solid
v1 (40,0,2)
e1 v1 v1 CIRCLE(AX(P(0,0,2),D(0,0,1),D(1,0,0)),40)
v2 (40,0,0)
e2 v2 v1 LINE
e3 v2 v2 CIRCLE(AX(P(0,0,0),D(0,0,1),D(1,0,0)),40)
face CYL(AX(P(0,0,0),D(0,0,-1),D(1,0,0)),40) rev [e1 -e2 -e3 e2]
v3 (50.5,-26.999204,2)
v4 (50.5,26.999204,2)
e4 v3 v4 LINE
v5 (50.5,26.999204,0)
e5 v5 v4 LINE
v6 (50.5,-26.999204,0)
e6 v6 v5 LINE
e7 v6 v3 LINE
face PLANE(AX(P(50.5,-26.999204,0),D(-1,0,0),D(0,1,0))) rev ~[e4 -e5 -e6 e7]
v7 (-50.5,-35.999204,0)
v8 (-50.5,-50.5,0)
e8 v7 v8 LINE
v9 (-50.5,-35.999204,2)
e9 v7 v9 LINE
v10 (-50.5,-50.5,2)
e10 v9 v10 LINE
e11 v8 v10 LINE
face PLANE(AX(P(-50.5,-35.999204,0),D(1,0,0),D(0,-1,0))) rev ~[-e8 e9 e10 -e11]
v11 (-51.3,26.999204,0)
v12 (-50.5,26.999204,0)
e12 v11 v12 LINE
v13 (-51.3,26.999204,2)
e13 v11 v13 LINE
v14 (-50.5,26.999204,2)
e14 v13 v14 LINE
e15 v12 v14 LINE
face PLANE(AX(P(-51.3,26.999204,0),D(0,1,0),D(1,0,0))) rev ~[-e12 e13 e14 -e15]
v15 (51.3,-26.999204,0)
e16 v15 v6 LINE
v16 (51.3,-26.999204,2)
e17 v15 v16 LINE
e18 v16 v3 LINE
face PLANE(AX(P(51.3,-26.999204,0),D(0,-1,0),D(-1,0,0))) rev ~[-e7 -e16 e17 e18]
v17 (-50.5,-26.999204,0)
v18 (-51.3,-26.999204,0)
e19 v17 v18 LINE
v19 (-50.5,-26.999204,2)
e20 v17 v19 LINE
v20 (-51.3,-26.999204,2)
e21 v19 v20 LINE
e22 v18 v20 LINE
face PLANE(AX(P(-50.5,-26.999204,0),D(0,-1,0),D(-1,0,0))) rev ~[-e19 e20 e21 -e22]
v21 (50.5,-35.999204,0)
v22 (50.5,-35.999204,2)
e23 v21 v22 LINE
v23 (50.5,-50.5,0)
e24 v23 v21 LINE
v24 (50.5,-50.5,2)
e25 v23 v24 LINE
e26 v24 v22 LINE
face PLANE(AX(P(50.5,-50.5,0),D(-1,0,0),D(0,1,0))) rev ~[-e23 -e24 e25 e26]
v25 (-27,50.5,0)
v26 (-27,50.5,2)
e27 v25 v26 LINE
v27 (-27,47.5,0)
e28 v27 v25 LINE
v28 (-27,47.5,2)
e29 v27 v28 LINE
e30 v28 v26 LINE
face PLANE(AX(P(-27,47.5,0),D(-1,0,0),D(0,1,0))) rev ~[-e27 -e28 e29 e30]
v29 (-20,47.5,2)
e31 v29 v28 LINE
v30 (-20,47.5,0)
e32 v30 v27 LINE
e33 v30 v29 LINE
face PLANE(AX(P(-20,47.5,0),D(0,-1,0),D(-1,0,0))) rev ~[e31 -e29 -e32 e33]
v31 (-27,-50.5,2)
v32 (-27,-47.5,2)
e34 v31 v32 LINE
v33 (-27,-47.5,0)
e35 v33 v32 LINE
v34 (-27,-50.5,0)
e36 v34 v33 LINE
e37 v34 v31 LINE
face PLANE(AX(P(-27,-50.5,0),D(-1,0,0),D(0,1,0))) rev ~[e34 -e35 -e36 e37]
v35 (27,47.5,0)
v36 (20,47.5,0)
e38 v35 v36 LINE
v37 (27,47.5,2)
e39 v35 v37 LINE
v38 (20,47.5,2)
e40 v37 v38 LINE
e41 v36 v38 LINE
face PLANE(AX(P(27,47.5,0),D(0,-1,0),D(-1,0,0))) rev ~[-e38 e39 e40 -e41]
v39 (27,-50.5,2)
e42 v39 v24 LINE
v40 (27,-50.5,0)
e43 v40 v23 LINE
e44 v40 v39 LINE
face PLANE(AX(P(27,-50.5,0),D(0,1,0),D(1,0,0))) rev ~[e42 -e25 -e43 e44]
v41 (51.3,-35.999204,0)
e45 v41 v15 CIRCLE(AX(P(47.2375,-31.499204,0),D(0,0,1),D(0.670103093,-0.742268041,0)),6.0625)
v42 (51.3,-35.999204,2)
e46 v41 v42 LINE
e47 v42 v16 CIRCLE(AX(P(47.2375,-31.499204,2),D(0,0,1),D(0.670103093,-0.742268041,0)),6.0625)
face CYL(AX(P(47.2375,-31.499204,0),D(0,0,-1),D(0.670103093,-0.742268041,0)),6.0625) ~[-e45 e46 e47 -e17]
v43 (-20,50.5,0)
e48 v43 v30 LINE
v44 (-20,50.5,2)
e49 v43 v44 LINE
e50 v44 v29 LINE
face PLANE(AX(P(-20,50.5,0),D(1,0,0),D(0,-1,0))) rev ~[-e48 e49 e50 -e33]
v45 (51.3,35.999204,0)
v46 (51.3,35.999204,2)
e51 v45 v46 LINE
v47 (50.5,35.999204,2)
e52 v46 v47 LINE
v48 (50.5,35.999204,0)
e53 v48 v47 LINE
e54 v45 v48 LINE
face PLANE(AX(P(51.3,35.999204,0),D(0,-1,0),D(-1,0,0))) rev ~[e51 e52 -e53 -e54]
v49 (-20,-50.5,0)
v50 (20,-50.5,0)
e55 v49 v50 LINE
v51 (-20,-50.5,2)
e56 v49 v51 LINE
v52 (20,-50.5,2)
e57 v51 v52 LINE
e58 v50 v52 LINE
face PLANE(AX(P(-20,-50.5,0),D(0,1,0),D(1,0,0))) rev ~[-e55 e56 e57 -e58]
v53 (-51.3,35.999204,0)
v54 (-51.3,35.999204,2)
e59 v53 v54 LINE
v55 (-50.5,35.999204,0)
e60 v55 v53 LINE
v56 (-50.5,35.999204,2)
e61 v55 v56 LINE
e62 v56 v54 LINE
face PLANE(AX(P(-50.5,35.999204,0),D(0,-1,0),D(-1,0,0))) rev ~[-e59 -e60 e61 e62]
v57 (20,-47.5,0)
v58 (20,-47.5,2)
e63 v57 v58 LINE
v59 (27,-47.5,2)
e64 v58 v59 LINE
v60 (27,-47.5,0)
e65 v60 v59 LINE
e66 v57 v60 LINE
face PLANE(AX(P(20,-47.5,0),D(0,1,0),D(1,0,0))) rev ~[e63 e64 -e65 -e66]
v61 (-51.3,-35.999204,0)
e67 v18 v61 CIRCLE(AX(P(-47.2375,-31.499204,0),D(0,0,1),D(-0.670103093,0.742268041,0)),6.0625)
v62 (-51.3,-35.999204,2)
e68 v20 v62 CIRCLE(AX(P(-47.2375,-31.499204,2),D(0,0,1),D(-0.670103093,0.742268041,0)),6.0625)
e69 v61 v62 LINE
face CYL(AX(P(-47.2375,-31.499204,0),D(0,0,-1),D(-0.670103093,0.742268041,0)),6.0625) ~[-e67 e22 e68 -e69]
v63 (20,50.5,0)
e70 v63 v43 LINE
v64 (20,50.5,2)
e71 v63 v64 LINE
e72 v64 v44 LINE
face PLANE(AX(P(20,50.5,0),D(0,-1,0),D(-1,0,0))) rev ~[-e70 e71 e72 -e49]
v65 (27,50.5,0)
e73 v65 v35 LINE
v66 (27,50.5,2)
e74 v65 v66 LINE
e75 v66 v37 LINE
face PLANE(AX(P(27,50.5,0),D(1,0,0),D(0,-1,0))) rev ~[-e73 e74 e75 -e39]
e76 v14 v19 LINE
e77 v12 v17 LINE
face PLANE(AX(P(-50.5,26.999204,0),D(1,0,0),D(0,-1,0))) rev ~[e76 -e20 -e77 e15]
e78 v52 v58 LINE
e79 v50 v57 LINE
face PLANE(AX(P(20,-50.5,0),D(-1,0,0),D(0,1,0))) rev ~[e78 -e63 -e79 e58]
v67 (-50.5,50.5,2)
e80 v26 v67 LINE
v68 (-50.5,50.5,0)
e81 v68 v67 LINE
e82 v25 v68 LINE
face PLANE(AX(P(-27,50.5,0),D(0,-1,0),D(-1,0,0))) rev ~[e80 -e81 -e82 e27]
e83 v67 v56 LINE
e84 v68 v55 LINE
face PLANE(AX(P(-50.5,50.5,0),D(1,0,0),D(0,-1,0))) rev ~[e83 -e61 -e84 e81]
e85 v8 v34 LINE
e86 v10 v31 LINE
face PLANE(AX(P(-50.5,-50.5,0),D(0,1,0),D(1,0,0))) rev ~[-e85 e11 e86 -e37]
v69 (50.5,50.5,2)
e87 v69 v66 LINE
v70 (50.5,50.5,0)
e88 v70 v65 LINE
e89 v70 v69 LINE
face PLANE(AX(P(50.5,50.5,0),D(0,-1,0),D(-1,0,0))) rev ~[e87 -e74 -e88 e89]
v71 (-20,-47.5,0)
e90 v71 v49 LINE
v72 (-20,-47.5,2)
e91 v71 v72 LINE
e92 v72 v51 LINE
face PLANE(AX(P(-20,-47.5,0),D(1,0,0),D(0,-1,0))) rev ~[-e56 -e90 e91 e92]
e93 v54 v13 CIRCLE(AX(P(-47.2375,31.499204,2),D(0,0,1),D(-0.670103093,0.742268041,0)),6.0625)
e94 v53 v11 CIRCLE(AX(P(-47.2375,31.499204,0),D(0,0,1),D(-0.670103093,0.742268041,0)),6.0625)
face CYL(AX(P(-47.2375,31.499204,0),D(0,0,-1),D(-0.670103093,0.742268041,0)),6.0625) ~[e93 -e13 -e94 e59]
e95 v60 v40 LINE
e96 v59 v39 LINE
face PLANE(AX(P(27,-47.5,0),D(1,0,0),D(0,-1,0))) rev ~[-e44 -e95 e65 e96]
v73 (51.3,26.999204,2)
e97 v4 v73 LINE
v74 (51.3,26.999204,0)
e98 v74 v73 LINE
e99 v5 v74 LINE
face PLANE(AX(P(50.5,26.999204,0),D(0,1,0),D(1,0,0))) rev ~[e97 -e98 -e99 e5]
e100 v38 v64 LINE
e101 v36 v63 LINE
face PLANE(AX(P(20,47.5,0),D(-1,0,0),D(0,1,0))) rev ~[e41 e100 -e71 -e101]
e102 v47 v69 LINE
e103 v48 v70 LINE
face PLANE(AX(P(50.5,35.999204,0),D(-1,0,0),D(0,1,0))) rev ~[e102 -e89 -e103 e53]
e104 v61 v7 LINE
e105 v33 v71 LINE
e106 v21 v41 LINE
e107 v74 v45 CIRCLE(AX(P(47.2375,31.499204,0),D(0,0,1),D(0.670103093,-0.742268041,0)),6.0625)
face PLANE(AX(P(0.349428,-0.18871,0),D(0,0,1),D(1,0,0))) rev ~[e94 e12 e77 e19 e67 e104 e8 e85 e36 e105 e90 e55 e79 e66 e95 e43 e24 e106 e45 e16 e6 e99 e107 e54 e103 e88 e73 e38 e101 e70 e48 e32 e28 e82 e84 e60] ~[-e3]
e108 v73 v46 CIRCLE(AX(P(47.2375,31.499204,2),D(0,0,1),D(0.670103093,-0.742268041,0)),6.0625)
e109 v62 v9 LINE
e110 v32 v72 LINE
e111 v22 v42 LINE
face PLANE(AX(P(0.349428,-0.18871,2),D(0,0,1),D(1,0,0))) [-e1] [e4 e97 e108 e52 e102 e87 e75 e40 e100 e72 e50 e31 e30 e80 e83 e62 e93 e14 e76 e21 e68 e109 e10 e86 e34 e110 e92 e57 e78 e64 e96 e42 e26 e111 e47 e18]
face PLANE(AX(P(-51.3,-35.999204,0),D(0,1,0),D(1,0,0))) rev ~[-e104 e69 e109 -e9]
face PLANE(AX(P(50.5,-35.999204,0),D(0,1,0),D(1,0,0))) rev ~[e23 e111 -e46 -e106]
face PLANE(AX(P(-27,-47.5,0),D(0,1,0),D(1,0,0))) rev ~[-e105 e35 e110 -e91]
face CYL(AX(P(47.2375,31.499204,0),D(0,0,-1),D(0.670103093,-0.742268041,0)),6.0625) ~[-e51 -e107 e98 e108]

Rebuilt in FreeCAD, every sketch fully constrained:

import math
import FreeCAD as App
import Part
import Sketcher
from FreeCAD import Vector
Q = App.Units.Quantity

doc = App.newDocument("Part")
body = doc.addObject("PartDesign::Body", "Body")

sketch1 = body.newObject("Sketcher::SketchObject", "Sketch")
sketch1.AttachmentSupport = (doc.getObject("XY_Plane"), [""])
sketch1.MapMode = "FlatFace"
sketch1.addGeometry([
    Part.LineSegment(Vector(50.5, 36, 0), Vector(50.5, 50.5, 0)),
    Part.LineSegment(Vector(50.5, 50.5, 0), Vector(27, 50.5, 0)),
    Part.LineSegment(Vector(27, 50.5, 0), Vector(27, 47.5, 0)),
    Part.LineSegment(Vector(27, 47.5, 0), Vector(20, 47.5, 0)),
    Part.LineSegment(Vector(20, 47.5, 0), Vector(20, 50.5, 0)),
    Part.LineSegment(Vector(20, 50.5, 0), Vector(-20, 50.5, 0)),
    Part.LineSegment(Vector(-20, 50.5, 0), Vector(-20, 47.5, 0)),
    Part.LineSegment(Vector(-20, 47.5, 0), Vector(-27, 47.5, 0)),
    Part.LineSegment(Vector(-27, 47.5, 0), Vector(-27, 50.5, 0)),
    Part.LineSegment(Vector(-27, 50.5, 0), Vector(-50.5, 50.5, 0)),
    Part.LineSegment(Vector(-50.5, 50.5, 0), Vector(-50.5, 36, 0)),
    Part.LineSegment(Vector(-50.5, 36, 0), Vector(-51.3, 36, 0)),
    Part.ArcOfCircle(Part.Circle(Vector(-47.2, 31.5, 0), Vector(0, 0, 1), 6.1), math.radians(132), math.radians(228)),
    Part.LineSegment(Vector(-51.3, 27, 0), Vector(-50.5, 27, 0)),
    Part.LineSegment(Vector(-50.5, 27, 0), Vector(-50.5, -27, 0)),
    Part.LineSegment(Vector(-50.5, -27, 0), Vector(-51.3, -27, 0)),
    Part.ArcOfCircle(Part.Circle(Vector(-47.2, -31.5, 0), Vector(0, 0, 1), 6.1), math.radians(132), math.radians(228)),
    Part.LineSegment(Vector(-51.3, -36, 0), Vector(-50.5, -36, 0)),
    Part.LineSegment(Vector(-50.5, -36, 0), Vector(-50.5, -50.5, 0)),
    Part.LineSegment(Vector(-50.5, -50.5, 0), Vector(-27, -50.5, 0)),
    Part.LineSegment(Vector(-27, -50.5, 0), Vector(-27, -47.5, 0)),
    Part.LineSegment(Vector(-27, -47.5, 0), Vector(-20, -47.5, 0)),
    Part.LineSegment(Vector(-20, -47.5, 0), Vector(-20, -50.5, 0)),
    Part.LineSegment(Vector(-20, -50.5, 0), Vector(20, -50.5, 0)),
    Part.LineSegment(Vector(20, -50.5, 0), Vector(20, -47.5, 0)),
    Part.LineSegment(Vector(20, -47.5, 0), Vector(27, -47.5, 0)),
    Part.LineSegment(Vector(27, -47.5, 0), Vector(27, -50.5, 0)),
    Part.LineSegment(Vector(27, -50.5, 0), Vector(50.5, -50.5, 0)),
    Part.LineSegment(Vector(50.5, -50.5, 0), Vector(50.5, -36, 0)),
    Part.LineSegment(Vector(50.5, -36, 0), Vector(51.3, -36, 0)),
    Part.ArcOfCircle(Part.Circle(Vector(47.2, -31.5, 0), Vector(0, 0, 1), 6.1), math.radians(-48), math.radians(48)),
    Part.LineSegment(Vector(51.3, -27, 0), Vector(50.5, -27, 0)),
    Part.LineSegment(Vector(50.5, -27, 0), Vector(50.5, 27, 0)),
    Part.LineSegment(Vector(50.5, 27, 0), Vector(51.3, 27, 0)),
    Part.ArcOfCircle(Part.Circle(Vector(47.2, 31.5, 0), Vector(0, 0, 1), 6.1), math.radians(-48), math.radians(48)),
    Part.LineSegment(Vector(51.3, 36, 0), Vector(50.5, 36, 0)),
    Part.Circle(Vector(0, 0, 0), Vector(0, 0, 1), 40),
], False)
sketch1.addConstraint([
    Sketcher.Constraint("Coincident", 0, 2, 1, 1),
    Sketcher.Constraint("Coincident", 1, 2, 2, 1),
    Sketcher.Constraint("Coincident", 2, 2, 3, 1),
    Sketcher.Constraint("Coincident", 3, 2, 4, 1),
    Sketcher.Constraint("Coincident", 4, 2, 5, 1),
    Sketcher.Constraint("Coincident", 5, 2, 6, 1),
    Sketcher.Constraint("Coincident", 6, 2, 7, 1),
    Sketcher.Constraint("Coincident", 7, 2, 8, 1),
    Sketcher.Constraint("Coincident", 8, 2, 9, 1),
    Sketcher.Constraint("Coincident", 9, 2, 10, 1),
    Sketcher.Constraint("Coincident", 10, 2, 11, 1),
    Sketcher.Constraint("Coincident", 11, 2, 12, 1),
    Sketcher.Constraint("Coincident", 12, 2, 13, 1),
    Sketcher.Constraint("Coincident", 13, 2, 14, 1),
    Sketcher.Constraint("Coincident", 14, 2, 15, 1),
    Sketcher.Constraint("Coincident", 15, 2, 16, 1),
    Sketcher.Constraint("Coincident", 16, 2, 17, 1),
    Sketcher.Constraint("Coincident", 17, 2, 18, 1),
    Sketcher.Constraint("Coincident", 18, 2, 19, 1),
    Sketcher.Constraint("Coincident", 19, 2, 20, 1),
    Sketcher.Constraint("Coincident", 20, 2, 21, 1),
    Sketcher.Constraint("Coincident", 21, 2, 22, 1),
    Sketcher.Constraint("Coincident", 22, 2, 23, 1),
    Sketcher.Constraint("Coincident", 23, 2, 24, 1),
    Sketcher.Constraint("Coincident", 24, 2, 25, 1),
    Sketcher.Constraint("Coincident", 25, 2, 26, 1),
    Sketcher.Constraint("Coincident", 26, 2, 27, 1),
    Sketcher.Constraint("Coincident", 27, 2, 28, 1),
    Sketcher.Constraint("Coincident", 28, 2, 29, 1),
    Sketcher.Constraint("Coincident", 29, 2, 30, 1),
    Sketcher.Constraint("Coincident", 30, 2, 31, 1),
    Sketcher.Constraint("Coincident", 31, 2, 32, 1),
    Sketcher.Constraint("Coincident", 32, 2, 33, 1),
    Sketcher.Constraint("Coincident", 33, 2, 34, 1),
    Sketcher.Constraint("Coincident", 34, 2, 35, 1),
    Sketcher.Constraint("Coincident", 35, 2, 0, 1),
    Sketcher.Constraint("Vertical", 0),
    Sketcher.Constraint("Horizontal", 1),
    Sketcher.Constraint("Vertical", 2),
    Sketcher.Constraint("Horizontal", 3),
    Sketcher.Constraint("Vertical", 4),
    Sketcher.Constraint("Horizontal", 5),
    Sketcher.Constraint("Vertical", 6),
    Sketcher.Constraint("Horizontal", 7),
    Sketcher.Constraint("Vertical", 8),
    Sketcher.Constraint("Horizontal", 9),
    Sketcher.Constraint("Vertical", 10),
    Sketcher.Constraint("Horizontal", 11),
    Sketcher.Constraint("Horizontal", 13),
    Sketcher.Constraint("Vertical", 14),
    Sketcher.Constraint("Horizontal", 15),
    Sketcher.Constraint("Horizontal", 17),
    Sketcher.Constraint("Vertical", 18),
    Sketcher.Constraint("Horizontal", 19),
    Sketcher.Constraint("Vertical", 20),
    Sketcher.Constraint("Horizontal", 21),
    Sketcher.Constraint("Vertical", 22),
    Sketcher.Constraint("Horizontal", 23),
    Sketcher.Constraint("Vertical", 24),
    Sketcher.Constraint("Horizontal", 25),
    Sketcher.Constraint("Vertical", 26),
    Sketcher.Constraint("Horizontal", 27),
    Sketcher.Constraint("Vertical", 28),
    Sketcher.Constraint("Horizontal", 29),
    Sketcher.Constraint("Horizontal", 31),
    Sketcher.Constraint("Vertical", 32),
    Sketcher.Constraint("Horizontal", 33),
    Sketcher.Constraint("Horizontal", 35),
    Sketcher.Constraint("Coincident", 36, 3, -1, 1),
    Sketcher.Constraint("Equal", 12, 16),
    Sketcher.Constraint("Equal", 16, 30),
    Sketcher.Constraint("Equal", 30, 34),
    Sketcher.Constraint("Symmetric", 12, 3, 30, 3, -1, 1),
    Sketcher.Constraint("Symmetric", 16, 3, 34, 3, -1, 1),
    Sketcher.Constraint("Symmetric", 0, 2, 18, 2, -1, 1),
    Sketcher.Constraint("Symmetric", 2, 2, 20, 2, -1, 1),
    Sketcher.Constraint("Symmetric", 4, 2, 22, 2, -1, 1),
    Sketcher.Constraint("Symmetric", 6, 2, 24, 2, -1, 1),
    Sketcher.Constraint("Symmetric", 8, 2, 26, 2, -1, 1),
    Sketcher.Constraint("Symmetric", 10, 2, 28, 2, -1, 1),
    Sketcher.Constraint("Symmetric", 13, 2, 31, 2, -1, 1),
    Sketcher.Constraint("Symmetric", 16, 3, 30, 3, -2),
    Sketcher.Constraint("Symmetric", 3, 2, 6, 2, -2),
    Sketcher.Constraint("Symmetric", 1, 2, 8, 2, -2),
    Sketcher.Constraint("Symmetric", 17, 2, 28, 2, -2),
    Sketcher.Constraint("Horizontal", 1, 2, 4, 2),
    Sketcher.Constraint("Horizontal", 15, 2, 30, 2),
    Sketcher.Constraint("Horizontal", 13, 2, 32, 2),
    Sketcher.Constraint("Horizontal", 11, 2, 34, 2),
    Sketcher.Constraint("Vertical", 11, 2, 12, 2),
    Sketcher.Constraint("Vertical", 10, 2, 13, 2),
    Sketcher.Constraint("Diameter", 36, Q("80 mm")),
    Sketcher.Constraint("DistanceX", 3, 2, 3, 1, Q("7 mm")),
    Sketcher.Constraint("DistanceX", 5, 2, 5, 1, Q("40 mm")),
    Sketcher.Constraint("DistanceY", 2, 2, 2, 1, Q("3 mm")),
    Sketcher.Constraint("DistanceX", 1, 2, 1, 1, Q("23.5 mm")),
    Sketcher.Constraint("DistanceX", 11, 2, 11, 1, Q("0.8 mm")),
    Sketcher.Constraint("DistanceY", 12, 2, 11, 2, Q("9 mm")),
    Sketcher.Constraint("DistanceY", -1, 1, 0, 2, Q("50.5 mm")),
    Sketcher.Constraint("Radius", 12, Q("6.0625 mm")),
    Sketcher.Constraint("DistanceY", 0, 1, 0, 2, Q("14.500796 mm")),
])
pad1 = body.newObject("PartDesign::Pad", "Pad")
pad1.Profile = sketch1
pad1.Length = 2

doc.recompute()
